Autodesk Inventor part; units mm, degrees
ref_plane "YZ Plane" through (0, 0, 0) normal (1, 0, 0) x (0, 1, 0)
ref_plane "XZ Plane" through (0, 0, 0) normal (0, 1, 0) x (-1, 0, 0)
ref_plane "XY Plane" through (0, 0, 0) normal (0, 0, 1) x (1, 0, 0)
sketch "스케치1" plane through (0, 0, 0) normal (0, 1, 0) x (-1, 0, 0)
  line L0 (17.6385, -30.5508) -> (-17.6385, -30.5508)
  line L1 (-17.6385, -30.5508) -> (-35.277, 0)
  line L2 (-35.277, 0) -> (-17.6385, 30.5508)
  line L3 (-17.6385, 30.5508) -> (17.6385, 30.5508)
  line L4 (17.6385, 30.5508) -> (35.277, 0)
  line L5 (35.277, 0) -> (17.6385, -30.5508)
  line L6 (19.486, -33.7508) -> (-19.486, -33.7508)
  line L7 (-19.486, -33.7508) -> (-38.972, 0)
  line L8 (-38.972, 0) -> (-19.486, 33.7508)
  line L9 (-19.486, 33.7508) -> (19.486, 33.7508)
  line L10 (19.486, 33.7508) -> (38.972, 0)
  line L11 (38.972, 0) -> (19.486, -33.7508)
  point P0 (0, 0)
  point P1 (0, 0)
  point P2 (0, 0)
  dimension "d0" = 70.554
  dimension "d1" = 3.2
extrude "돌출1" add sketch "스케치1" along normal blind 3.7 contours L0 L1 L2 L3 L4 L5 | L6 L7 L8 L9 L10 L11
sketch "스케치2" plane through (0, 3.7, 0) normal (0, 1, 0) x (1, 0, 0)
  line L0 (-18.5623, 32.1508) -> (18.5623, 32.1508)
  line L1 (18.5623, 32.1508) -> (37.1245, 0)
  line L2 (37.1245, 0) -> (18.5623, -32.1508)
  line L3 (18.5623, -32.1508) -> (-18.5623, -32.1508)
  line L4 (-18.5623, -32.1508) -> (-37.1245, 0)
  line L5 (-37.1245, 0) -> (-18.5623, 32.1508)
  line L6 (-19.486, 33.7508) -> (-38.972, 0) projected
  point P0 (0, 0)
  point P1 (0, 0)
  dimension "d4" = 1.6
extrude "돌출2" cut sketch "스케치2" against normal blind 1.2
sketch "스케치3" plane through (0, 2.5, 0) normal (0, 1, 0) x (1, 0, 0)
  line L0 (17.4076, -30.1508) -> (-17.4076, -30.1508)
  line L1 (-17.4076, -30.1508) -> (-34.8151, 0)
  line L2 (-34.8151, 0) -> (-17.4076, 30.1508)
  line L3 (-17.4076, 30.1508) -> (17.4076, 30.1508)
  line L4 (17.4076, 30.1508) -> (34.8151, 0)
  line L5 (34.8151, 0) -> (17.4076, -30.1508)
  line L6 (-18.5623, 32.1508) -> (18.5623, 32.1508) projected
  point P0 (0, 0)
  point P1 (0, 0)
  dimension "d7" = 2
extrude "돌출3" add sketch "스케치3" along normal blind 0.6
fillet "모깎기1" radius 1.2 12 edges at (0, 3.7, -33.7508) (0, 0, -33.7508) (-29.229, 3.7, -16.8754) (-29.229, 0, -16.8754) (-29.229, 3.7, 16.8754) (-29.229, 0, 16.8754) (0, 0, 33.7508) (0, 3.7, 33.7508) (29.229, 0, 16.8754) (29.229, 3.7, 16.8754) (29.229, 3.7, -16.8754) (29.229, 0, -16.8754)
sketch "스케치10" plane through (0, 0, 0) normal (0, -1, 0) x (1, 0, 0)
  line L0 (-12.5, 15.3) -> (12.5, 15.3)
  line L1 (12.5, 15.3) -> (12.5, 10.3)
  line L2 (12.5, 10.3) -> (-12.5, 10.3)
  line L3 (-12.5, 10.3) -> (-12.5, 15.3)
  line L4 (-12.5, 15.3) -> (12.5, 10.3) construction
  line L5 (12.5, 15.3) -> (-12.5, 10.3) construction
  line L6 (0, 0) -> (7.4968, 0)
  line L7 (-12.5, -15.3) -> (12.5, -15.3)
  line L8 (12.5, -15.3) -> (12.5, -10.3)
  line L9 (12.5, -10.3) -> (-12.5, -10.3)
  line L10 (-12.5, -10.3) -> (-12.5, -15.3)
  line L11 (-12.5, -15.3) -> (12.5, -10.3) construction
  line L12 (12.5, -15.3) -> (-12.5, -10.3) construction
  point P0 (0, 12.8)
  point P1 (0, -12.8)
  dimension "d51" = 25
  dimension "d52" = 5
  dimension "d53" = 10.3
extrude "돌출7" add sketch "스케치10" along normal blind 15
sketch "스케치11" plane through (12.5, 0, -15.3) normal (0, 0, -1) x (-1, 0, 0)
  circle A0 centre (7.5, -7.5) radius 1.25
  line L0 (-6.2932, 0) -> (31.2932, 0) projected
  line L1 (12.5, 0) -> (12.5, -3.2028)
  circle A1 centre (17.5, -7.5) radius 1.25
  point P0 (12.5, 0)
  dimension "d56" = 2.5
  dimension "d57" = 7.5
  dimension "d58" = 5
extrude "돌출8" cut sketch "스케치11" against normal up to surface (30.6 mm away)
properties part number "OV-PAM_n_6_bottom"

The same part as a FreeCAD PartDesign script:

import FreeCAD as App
import Part
import Sketcher

V = App.Vector
Q = App.Units.Quantity


def edges_at(feature, points):
    """Names of the edges that pass closest to the given points."""
    edges = feature.Shape.Edges
    near = lambda p: min(range(len(edges)), key=lambda i: edges[i].distToShape(Part.Vertex(*p))[0])
    return sorted({f"Edge{near(p) + 1}" for p in points})

doc = App.newDocument("Part")
body = doc.addObject("PartDesign::Body", "Body")

# Sketch on XZ plane
sketch1 = body.newObject("Sketcher::SketchObject", "Sketch")
sketch1.AttachmentSupport = (doc.getObject("XZ_Plane"), [""])
sketch1.MapMode = "FlatFace"
sketch1.addGeometry(Part.LineSegment(V(19.486, -33.7508, 0), V(-19.486, -33.7508, 0)), False)
sketch1.addGeometry(Part.LineSegment(V(-19.486, -33.7508, 0), V(-38.972, 0, 0)), False)
sketch1.addGeometry(Part.LineSegment(V(-38.972, 0, 0), V(-19.486, 33.7508, 0)), False)
sketch1.addGeometry(Part.LineSegment(V(-19.486, 33.7508, 0), V(19.486, 33.7508, 0)), False)
sketch1.addGeometry(Part.LineSegment(V(19.486, 33.7508, 0), V(38.972, 0, 0)), False)
sketch1.addGeometry(Part.LineSegment(V(38.972, 0, 0), V(19.486, -33.7508, 0)), False)
sketch1.addConstraint(Sketcher.Constraint("Coincident", 0, 2, 1, 1))
sketch1.addConstraint(Sketcher.Constraint("Coincident", 1, 2, 2, 1))
sketch1.addConstraint(Sketcher.Constraint("Coincident", 2, 2, 3, 1))
sketch1.addConstraint(Sketcher.Constraint("Coincident", 3, 2, 4, 1))
sketch1.addConstraint(Sketcher.Constraint("Coincident", 4, 2, 5, 1))
sketch1.addConstraint(Sketcher.Constraint("Coincident", 5, 2, 0, 1))
sketch1.addConstraint(Sketcher.Constraint("Horizontal", 0))
sketch1.addConstraint(Sketcher.Constraint("Horizontal", 3))
sketch1.addConstraint(Sketcher.Constraint("Symmetric", 0, 2, 3, 2, -1, 1))
sketch1.addConstraint(Sketcher.Constraint("Symmetric", 1, 2, 4, 2, -1, 1))
sketch1.addConstraint(Sketcher.Constraint("PointOnObject", 1, 2, -1))
sketch1.addConstraint(Sketcher.Constraint("Parallel", 2, 5))
sketch1.addConstraint(Sketcher.Constraint("Vertical", 0, 2, 2, 2))
sketch1.addConstraint(Sketcher.Constraint("Angle", 1, Q("120 deg")))
sketch1.addConstraint(Sketcher.Constraint("DistanceX", 0, 2, 0, 1, Q("38.972 mm")))
sketch1.addConstraint(Sketcher.Constraint("Distance", 1, Q("38.972 mm")))
pad1 = body.newObject("PartDesign::Pad", "Pad")
pad1.Profile = sketch1
pad1.Length = 3.7
pad1.Reversed = True

# Sketch on XZ plane
sketch2 = body.newObject("Sketcher::SketchObject", "Sketch001")
sketch2.AttachmentSupport = (doc.getObject("XZ_Plane"), [""])
sketch2.MapMode = "FlatFace"
sketch2.AttachmentOffset = App.Placement(V(0, 0, -3.7), App.Rotation())
sketch2.addGeometry(Part.LineSegment(V(18.5623, -32.1508, 0), V(-18.5623, -32.1508, 0)), False)
sketch2.addGeometry(Part.LineSegment(V(-18.5623, -32.1508, 0), V(-37.1245, 0, 0)), False)
sketch2.addGeometry(Part.LineSegment(V(-37.1245, 0, 0), V(-18.5623, 32.1508, 0)), False)
sketch2.addGeometry(Part.LineSegment(V(-18.5623, 32.1508, 0), V(18.5623, 32.1508, 0)), False)
sketch2.addGeometry(Part.LineSegment(V(18.5623, 32.1508, 0), V(37.1245, 0, 0)), False)
sketch2.addGeometry(Part.LineSegment(V(37.1245, 0, 0), V(18.5623, -32.1508, 0)), False)
sketch2.addConstraint(Sketcher.Constraint("Coincident", 0, 2, 1, 1))
sketch2.addConstraint(Sketcher.Constraint("Coincident", 1, 2, 2, 1))
sketch2.addConstraint(Sketcher.Constraint("Coincident", 2, 2, 3, 1))
sketch2.addConstraint(Sketcher.Constraint("Coincident", 3, 2, 4, 1))
sketch2.addConstraint(Sketcher.Constraint("Coincident", 4, 2, 5, 1))
sketch2.addConstraint(Sketcher.Constraint("Coincident", 5, 2, 0, 1))
sketch2.addConstraint(Sketcher.Constraint("Horizontal", 0))
sketch2.addConstraint(Sketcher.Constraint("Horizontal", 3))
sketch2.addConstraint(Sketcher.Constraint("Symmetric", 0, 2, 3, 2, -1, 1))
sketch2.addConstraint(Sketcher.Constraint("Symmetric", 1, 2, 4, 2, -1, 1))
sketch2.addConstraint(Sketcher.Constraint("PointOnObject", 1, 2, -1))
sketch2.addConstraint(Sketcher.Constraint("Parallel", 2, 5))
sketch2.addConstraint(Sketcher.Constraint("Vertical", 0, 2, 2, 2))
sketch2.addConstraint(Sketcher.Constraint("Angle", 1, Q("120 deg")))
sketch2.addConstraint(Sketcher.Constraint("DistanceX", 0, 2, 0, 1, Q("37.1246 mm")))
sketch2.addConstraint(Sketcher.Constraint("DistanceX", 1, 2, 4, 2, Q("74.249 mm")))
pocket1 = body.newObject("PartDesign::Pocket", "Pocket")
pocket1.Profile = sketch2
pocket1.Length = 1.2
pocket1.Reversed = True

# Sketch on XZ plane
sketch3 = body.newObject("Sketcher::SketchObject", "Sketch002")
sketch3.AttachmentSupport = (doc.getObject("XZ_Plane"), [""])
sketch3.MapMode = "FlatFace"
sketch3.AttachmentOffset = App.Placement(V(0, 0, -2.5), App.Rotation())
sketch3.addGeometry(Part.LineSegment(V(-17.4076, 30.1508, 0), V(17.4076, 30.1508, 0)), False)
sketch3.addGeometry(Part.LineSegment(V(17.4076, 30.1508, 0), V(34.8151, 0, 0)), False)
sketch3.addGeometry(Part.LineSegment(V(34.8151, 0, 0), V(17.4076, -30.1508, 0)), False)
sketch3.addGeometry(Part.LineSegment(V(17.4076, -30.1508, 0), V(-17.4076, -30.1508, 0)), False)
sketch3.addGeometry(Part.LineSegment(V(-17.4076, -30.1508, 0), V(-34.8151, 0, 0)), False)
sketch3.addGeometry(Part.LineSegment(V(-34.8151, 0, 0), V(-17.4076, 30.1508, 0)), False)
sketch3.addConstraint(Sketcher.Constraint("Coincident", 0, 2, 1, 1))
sketch3.addConstraint(Sketcher.Constraint("Coincident", 1, 2, 2, 1))
sketch3.addConstraint(Sketcher.Constraint("Coincident", 2, 2, 3, 1))
sketch3.addConstraint(Sketcher.Constraint("Coincident", 3, 2, 4, 1))
sketch3.addConstraint(Sketcher.Constraint("Coincident", 4, 2, 5, 1))
sketch3.addConstraint(Sketcher.Constraint("Coincident", 5, 2, 0, 1))
sketch3.addConstraint(Sketcher.Constraint("Horizontal", 0))
sketch3.addConstraint(Sketcher.Constraint("Horizontal", 3))
sketch3.addConstraint(Sketcher.Constraint("Symmetric", 0, 2, 3, 2, -1, 1))
sketch3.addConstraint(Sketcher.Constraint("Symmetric", 1, 2, 4, 2, -1, 1))
sketch3.addConstraint(Sketcher.Constraint("PointOnObject", 1, 2, -1))
sketch3.addConstraint(Sketcher.Constraint("Parallel", 2, 5))
sketch3.addConstraint(Sketcher.Constraint("Vertical", 0, 2, 2, 2))
sketch3.addConstraint(Sketcher.Constraint("Angle", 1, Q("-60 deg")))
sketch3.addConstraint(Sketcher.Constraint("Distance", 1, Q("34.815 mm")))
sketch3.addConstraint(Sketcher.Constraint("DistanceX", 0, 1, 0, 2, Q("34.8152 mm")))
pad2 = body.newObject("PartDesign::Pad", "Pad001")
pad2.Profile = sketch3
pad2.Length = 0.6
pad2.Reversed = True
doc.recompute()

fillet = body.newObject("PartDesign::Fillet", "Fillet")
fillet.Base = (pad2, edges_at(pad2, [
    (0, 3.7, -33.751),
    (0, 0, -33.751),
    (-29.229, 3.7, -16.875),
    (-29.229, 0, -16.875),
    (-29.229, 3.7, 16.875),
    (-29.229, 0, 16.875),
    (0, 0, 33.751),
    (0, 3.7, 33.751),
    (29.229, 0, 16.875),
    (29.229, 3.7, 16.875),
    (29.229, 3.7, -16.875),
    (29.229, 0, -16.875),
]))
fillet.Radius = 1.2

# Sketch on XZ plane
sketch4 = body.newObject("Sketcher::SketchObject", "Sketch003")
sketch4.AttachmentSupport = (doc.getObject("XZ_Plane"), [""])
sketch4.MapMode = "FlatFace"
sketch4.addGeometry(Part.LineSegment(V(12.5, 15.3, 0), V(-12.5, 15.3, 0)), False)
sketch4.addGeometry(Part.LineSegment(V(-12.5, 15.3, 0), V(-12.5, 10.3, 0)), False)
sketch4.addGeometry(Part.LineSegment(V(-12.5, 10.3, 0), V(12.5, 10.3, 0)), False)
sketch4.addGeometry(Part.LineSegment(V(12.5, 10.3, 0), V(12.5, 15.3, 0)), False)
sketch4.addGeometry(Part.LineSegment(V(-12.5, -10.3, 0), V(-12.5, -15.3, 0)), False)
sketch4.addGeometry(Part.LineSegment(V(-12.5, -15.3, 0), V(12.5, -15.3, 0)), False)
sketch4.addGeometry(Part.LineSegment(V(12.5, -15.3, 0), V(12.5, -10.3, 0)), False)
sketch4.addGeometry(Part.LineSegment(V(12.5, -10.3, 0), V(-12.5, -10.3, 0)), False)
sketch4.addConstraint(Sketcher.Constraint("Coincident", 0, 2, 1, 1))
sketch4.addConstraint(Sketcher.Constraint("Coincident", 1, 2, 2, 1))
sketch4.addConstraint(Sketcher.Constraint("Coincident", 2, 2, 3, 1))
sketch4.addConstraint(Sketcher.Constraint("Coincident", 3, 2, 0, 1))
sketch4.addConstraint(Sketcher.Constraint("Coincident", 4, 2, 5, 1))
sketch4.addConstraint(Sketcher.Constraint("Coincident", 5, 2, 6, 1))
sketch4.addConstraint(Sketcher.Constraint("Coincident", 6, 2, 7, 1))
sketch4.addConstraint(Sketcher.Constraint("Coincident", 7, 2, 4, 1))
sketch4.addConstraint(Sketcher.Constraint("Horizontal", 0))
sketch4.addConstraint(Sketcher.Constraint("Vertical", 1))
sketch4.addConstraint(Sketcher.Constraint("Horizontal", 2))
sketch4.addConstraint(Sketcher.Constraint("Vertical", 3))
sketch4.addConstraint(Sketcher.Constraint("Vertical", 4))
sketch4.addConstraint(Sketcher.Constraint("Horizontal", 5))
sketch4.addConstraint(Sketcher.Constraint("Vertical", 6))
sketch4.addConstraint(Sketcher.Constraint("Horizontal", 7))
sketch4.addConstraint(Sketcher.Constraint("Symmetric", 3, 2, 4, 2, -1, 1))
sketch4.addConstraint(Sketcher.Constraint("Symmetric", 1, 2, 6, 2, -1, 1))
sketch4.addConstraint(Sketcher.Constraint("Vertical", 1, 2, 4, 2))
sketch4.addConstraint(Sketcher.Constraint("DistanceX", 0, 2, 0, 1, Q("25 mm")))
sketch4.addConstraint(Sketcher.Constraint("DistanceY", 1, 2, 1, 1, Q("5 mm")))
sketch4.addConstraint(Sketcher.Constraint("DistanceY", -1, 1, 1, 2, Q("10.3 mm")))
pad3 = body.newObject("PartDesign::Pad", "Pad002")
pad3.Profile = sketch4
pad3.Length = 15

# Sketch on XY plane
sketch5 = body.newObject("Sketcher::SketchObject", "Sketch004")
sketch5.AttachmentSupport = (doc.getObject("XY_Plane"), [""])
sketch5.MapMode = "FlatFace"
sketch5.AttachmentOffset = App.Placement(V(0, 0, -15.3), App.Rotation())
sketch5.addGeometry(Part.Circle(V(5, -7.5, 0), V(0, 0, 1), 1.25), False)
sketch5.addGeometry(Part.Circle(V(-5, -7.5, 0), V(0, 0, 1), 1.25), False)
sketch5.addConstraint(Sketcher.Constraint("Equal", 0, 1))
sketch5.addConstraint(Sketcher.Constraint("Symmetric", 0, 3, 1, 3, -2))
sketch5.addConstraint(Sketcher.Constraint("Diameter", 0, Q("2.5 mm")))
sketch5.addConstraint(Sketcher.Constraint("DistanceX", -1, 1, 0, 3, Q("5 mm")))
sketch5.addConstraint(Sketcher.Constraint("DistanceY", 0, 3, -1, 1, Q("7.5 mm")))
pocket2 = body.newObject("PartDesign::Pocket", "Pocket001")
pocket2.Profile = sketch5
pocket2.Length = 30.6
pocket2.Reversed = True

doc.recompute()
